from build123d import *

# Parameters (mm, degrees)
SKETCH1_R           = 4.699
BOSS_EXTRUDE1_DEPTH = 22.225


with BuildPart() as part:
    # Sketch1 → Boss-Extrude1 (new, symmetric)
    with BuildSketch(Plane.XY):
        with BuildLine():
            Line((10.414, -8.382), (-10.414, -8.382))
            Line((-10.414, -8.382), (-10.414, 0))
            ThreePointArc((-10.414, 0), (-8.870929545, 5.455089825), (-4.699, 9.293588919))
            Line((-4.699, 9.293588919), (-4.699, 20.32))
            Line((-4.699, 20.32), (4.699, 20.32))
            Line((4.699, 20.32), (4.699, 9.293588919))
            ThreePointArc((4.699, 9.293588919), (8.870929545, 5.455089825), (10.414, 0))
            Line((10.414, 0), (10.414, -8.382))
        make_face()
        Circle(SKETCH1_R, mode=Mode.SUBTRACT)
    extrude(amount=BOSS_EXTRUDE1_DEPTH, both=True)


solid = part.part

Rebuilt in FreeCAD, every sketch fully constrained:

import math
import FreeCAD as App
import Part
import Sketcher
from FreeCAD import Vector
Q = App.Units.Quantity

doc = App.newDocument("Part")
body = doc.addObject("PartDesign::Body", "Body")

sketch1 = body.newObject("Sketcher::SketchObject", "Sketch")
sketch1.AttachmentSupport = (doc.getObject("XY_Plane"), [""])
sketch1.MapMode = "FlatFace"
sketch1.addGeometry([
    Part.LineSegment(Vector(-10.4, -8.4, 0), Vector(10.4, -8.4, 0)),
    Part.LineSegment(Vector(10.4, -8.4, 0), Vector(10.4, 0, 0)),
    Part.ArcOfCircle(Part.Circle(Vector(0, 0, 0), Vector(0, 0, 1), 10.4), math.radians(0), math.radians(63)),
    Part.LineSegment(Vector(4.7, 9.3, 0), Vector(4.7, 20.3, 0)),
    Part.LineSegment(Vector(4.7, 20.3, 0), Vector(-4.7, 20.3, 0)),
    Part.LineSegment(Vector(-4.7, 20.3, 0), Vector(-4.7, 9.3, 0)),
    Part.ArcOfCircle(Part.Circle(Vector(0, 0, 0), Vector(0, 0, 1), 10.4), math.radians(117), math.radians(180)),
    Part.LineSegment(Vector(-10.4, 0, 0), Vector(-10.4, -8.4, 0)),
    Part.Circle(Vector(0, 0, 0), Vector(0, 0, 1), 4.7),
], False)
sketch1.addConstraint([
    Sketcher.Constraint("Coincident", 0, 2, 1, 1),
    Sketcher.Constraint("Tangent", 1, 2, 2, 1),
    Sketcher.Constraint("Coincident", 2, 2, 3, 1),
    Sketcher.Constraint("Coincident", 3, 2, 4, 1),
    Sketcher.Constraint("Coincident", 4, 2, 5, 1),
    Sketcher.Constraint("Coincident", 5, 2, 6, 1),
    Sketcher.Constraint("Tangent", 6, 2, 7, 1),
    Sketcher.Constraint("Coincident", 7, 2, 0, 1),
    Sketcher.Constraint("Horizontal", 0),
    Sketcher.Constraint("Vertical", 1),
    Sketcher.Constraint("Vertical", 3),
    Sketcher.Constraint("Horizontal", 4),
    Sketcher.Constraint("Vertical", 5),
    Sketcher.Constraint("Vertical", 7),
    Sketcher.Constraint("Coincident", 2, 3, -1, 1),
    Sketcher.Constraint("Coincident", 6, 3, -1, 1),
    Sketcher.Constraint("Coincident", 8, 3, -1, 1),
    Sketcher.Constraint("Equal", 2, 6),
    Sketcher.Constraint("Horizontal", 2, 2, 5, 2),
    Sketcher.Constraint("Diameter", 8, Q("0.37 in")),
    Sketcher.Constraint("Radius", 2, Q("0.41 in")),
    Sketcher.Constraint("DistanceX", 4, 2, 4, 1, Q("0.37 in")),
    Sketcher.Constraint("DistanceY", 1, 1, 1, 2, Q("0.33 in")),
    Sketcher.Constraint("DistanceY", -1, 1, 3, 2, Q("0.8 in")),
])
pad1 = body.newObject("PartDesign::Pad", "Pad")
pad1.Profile = sketch1
pad1.Length = Q("1.75 in")
pad1.Midplane = True

doc.recompute()
